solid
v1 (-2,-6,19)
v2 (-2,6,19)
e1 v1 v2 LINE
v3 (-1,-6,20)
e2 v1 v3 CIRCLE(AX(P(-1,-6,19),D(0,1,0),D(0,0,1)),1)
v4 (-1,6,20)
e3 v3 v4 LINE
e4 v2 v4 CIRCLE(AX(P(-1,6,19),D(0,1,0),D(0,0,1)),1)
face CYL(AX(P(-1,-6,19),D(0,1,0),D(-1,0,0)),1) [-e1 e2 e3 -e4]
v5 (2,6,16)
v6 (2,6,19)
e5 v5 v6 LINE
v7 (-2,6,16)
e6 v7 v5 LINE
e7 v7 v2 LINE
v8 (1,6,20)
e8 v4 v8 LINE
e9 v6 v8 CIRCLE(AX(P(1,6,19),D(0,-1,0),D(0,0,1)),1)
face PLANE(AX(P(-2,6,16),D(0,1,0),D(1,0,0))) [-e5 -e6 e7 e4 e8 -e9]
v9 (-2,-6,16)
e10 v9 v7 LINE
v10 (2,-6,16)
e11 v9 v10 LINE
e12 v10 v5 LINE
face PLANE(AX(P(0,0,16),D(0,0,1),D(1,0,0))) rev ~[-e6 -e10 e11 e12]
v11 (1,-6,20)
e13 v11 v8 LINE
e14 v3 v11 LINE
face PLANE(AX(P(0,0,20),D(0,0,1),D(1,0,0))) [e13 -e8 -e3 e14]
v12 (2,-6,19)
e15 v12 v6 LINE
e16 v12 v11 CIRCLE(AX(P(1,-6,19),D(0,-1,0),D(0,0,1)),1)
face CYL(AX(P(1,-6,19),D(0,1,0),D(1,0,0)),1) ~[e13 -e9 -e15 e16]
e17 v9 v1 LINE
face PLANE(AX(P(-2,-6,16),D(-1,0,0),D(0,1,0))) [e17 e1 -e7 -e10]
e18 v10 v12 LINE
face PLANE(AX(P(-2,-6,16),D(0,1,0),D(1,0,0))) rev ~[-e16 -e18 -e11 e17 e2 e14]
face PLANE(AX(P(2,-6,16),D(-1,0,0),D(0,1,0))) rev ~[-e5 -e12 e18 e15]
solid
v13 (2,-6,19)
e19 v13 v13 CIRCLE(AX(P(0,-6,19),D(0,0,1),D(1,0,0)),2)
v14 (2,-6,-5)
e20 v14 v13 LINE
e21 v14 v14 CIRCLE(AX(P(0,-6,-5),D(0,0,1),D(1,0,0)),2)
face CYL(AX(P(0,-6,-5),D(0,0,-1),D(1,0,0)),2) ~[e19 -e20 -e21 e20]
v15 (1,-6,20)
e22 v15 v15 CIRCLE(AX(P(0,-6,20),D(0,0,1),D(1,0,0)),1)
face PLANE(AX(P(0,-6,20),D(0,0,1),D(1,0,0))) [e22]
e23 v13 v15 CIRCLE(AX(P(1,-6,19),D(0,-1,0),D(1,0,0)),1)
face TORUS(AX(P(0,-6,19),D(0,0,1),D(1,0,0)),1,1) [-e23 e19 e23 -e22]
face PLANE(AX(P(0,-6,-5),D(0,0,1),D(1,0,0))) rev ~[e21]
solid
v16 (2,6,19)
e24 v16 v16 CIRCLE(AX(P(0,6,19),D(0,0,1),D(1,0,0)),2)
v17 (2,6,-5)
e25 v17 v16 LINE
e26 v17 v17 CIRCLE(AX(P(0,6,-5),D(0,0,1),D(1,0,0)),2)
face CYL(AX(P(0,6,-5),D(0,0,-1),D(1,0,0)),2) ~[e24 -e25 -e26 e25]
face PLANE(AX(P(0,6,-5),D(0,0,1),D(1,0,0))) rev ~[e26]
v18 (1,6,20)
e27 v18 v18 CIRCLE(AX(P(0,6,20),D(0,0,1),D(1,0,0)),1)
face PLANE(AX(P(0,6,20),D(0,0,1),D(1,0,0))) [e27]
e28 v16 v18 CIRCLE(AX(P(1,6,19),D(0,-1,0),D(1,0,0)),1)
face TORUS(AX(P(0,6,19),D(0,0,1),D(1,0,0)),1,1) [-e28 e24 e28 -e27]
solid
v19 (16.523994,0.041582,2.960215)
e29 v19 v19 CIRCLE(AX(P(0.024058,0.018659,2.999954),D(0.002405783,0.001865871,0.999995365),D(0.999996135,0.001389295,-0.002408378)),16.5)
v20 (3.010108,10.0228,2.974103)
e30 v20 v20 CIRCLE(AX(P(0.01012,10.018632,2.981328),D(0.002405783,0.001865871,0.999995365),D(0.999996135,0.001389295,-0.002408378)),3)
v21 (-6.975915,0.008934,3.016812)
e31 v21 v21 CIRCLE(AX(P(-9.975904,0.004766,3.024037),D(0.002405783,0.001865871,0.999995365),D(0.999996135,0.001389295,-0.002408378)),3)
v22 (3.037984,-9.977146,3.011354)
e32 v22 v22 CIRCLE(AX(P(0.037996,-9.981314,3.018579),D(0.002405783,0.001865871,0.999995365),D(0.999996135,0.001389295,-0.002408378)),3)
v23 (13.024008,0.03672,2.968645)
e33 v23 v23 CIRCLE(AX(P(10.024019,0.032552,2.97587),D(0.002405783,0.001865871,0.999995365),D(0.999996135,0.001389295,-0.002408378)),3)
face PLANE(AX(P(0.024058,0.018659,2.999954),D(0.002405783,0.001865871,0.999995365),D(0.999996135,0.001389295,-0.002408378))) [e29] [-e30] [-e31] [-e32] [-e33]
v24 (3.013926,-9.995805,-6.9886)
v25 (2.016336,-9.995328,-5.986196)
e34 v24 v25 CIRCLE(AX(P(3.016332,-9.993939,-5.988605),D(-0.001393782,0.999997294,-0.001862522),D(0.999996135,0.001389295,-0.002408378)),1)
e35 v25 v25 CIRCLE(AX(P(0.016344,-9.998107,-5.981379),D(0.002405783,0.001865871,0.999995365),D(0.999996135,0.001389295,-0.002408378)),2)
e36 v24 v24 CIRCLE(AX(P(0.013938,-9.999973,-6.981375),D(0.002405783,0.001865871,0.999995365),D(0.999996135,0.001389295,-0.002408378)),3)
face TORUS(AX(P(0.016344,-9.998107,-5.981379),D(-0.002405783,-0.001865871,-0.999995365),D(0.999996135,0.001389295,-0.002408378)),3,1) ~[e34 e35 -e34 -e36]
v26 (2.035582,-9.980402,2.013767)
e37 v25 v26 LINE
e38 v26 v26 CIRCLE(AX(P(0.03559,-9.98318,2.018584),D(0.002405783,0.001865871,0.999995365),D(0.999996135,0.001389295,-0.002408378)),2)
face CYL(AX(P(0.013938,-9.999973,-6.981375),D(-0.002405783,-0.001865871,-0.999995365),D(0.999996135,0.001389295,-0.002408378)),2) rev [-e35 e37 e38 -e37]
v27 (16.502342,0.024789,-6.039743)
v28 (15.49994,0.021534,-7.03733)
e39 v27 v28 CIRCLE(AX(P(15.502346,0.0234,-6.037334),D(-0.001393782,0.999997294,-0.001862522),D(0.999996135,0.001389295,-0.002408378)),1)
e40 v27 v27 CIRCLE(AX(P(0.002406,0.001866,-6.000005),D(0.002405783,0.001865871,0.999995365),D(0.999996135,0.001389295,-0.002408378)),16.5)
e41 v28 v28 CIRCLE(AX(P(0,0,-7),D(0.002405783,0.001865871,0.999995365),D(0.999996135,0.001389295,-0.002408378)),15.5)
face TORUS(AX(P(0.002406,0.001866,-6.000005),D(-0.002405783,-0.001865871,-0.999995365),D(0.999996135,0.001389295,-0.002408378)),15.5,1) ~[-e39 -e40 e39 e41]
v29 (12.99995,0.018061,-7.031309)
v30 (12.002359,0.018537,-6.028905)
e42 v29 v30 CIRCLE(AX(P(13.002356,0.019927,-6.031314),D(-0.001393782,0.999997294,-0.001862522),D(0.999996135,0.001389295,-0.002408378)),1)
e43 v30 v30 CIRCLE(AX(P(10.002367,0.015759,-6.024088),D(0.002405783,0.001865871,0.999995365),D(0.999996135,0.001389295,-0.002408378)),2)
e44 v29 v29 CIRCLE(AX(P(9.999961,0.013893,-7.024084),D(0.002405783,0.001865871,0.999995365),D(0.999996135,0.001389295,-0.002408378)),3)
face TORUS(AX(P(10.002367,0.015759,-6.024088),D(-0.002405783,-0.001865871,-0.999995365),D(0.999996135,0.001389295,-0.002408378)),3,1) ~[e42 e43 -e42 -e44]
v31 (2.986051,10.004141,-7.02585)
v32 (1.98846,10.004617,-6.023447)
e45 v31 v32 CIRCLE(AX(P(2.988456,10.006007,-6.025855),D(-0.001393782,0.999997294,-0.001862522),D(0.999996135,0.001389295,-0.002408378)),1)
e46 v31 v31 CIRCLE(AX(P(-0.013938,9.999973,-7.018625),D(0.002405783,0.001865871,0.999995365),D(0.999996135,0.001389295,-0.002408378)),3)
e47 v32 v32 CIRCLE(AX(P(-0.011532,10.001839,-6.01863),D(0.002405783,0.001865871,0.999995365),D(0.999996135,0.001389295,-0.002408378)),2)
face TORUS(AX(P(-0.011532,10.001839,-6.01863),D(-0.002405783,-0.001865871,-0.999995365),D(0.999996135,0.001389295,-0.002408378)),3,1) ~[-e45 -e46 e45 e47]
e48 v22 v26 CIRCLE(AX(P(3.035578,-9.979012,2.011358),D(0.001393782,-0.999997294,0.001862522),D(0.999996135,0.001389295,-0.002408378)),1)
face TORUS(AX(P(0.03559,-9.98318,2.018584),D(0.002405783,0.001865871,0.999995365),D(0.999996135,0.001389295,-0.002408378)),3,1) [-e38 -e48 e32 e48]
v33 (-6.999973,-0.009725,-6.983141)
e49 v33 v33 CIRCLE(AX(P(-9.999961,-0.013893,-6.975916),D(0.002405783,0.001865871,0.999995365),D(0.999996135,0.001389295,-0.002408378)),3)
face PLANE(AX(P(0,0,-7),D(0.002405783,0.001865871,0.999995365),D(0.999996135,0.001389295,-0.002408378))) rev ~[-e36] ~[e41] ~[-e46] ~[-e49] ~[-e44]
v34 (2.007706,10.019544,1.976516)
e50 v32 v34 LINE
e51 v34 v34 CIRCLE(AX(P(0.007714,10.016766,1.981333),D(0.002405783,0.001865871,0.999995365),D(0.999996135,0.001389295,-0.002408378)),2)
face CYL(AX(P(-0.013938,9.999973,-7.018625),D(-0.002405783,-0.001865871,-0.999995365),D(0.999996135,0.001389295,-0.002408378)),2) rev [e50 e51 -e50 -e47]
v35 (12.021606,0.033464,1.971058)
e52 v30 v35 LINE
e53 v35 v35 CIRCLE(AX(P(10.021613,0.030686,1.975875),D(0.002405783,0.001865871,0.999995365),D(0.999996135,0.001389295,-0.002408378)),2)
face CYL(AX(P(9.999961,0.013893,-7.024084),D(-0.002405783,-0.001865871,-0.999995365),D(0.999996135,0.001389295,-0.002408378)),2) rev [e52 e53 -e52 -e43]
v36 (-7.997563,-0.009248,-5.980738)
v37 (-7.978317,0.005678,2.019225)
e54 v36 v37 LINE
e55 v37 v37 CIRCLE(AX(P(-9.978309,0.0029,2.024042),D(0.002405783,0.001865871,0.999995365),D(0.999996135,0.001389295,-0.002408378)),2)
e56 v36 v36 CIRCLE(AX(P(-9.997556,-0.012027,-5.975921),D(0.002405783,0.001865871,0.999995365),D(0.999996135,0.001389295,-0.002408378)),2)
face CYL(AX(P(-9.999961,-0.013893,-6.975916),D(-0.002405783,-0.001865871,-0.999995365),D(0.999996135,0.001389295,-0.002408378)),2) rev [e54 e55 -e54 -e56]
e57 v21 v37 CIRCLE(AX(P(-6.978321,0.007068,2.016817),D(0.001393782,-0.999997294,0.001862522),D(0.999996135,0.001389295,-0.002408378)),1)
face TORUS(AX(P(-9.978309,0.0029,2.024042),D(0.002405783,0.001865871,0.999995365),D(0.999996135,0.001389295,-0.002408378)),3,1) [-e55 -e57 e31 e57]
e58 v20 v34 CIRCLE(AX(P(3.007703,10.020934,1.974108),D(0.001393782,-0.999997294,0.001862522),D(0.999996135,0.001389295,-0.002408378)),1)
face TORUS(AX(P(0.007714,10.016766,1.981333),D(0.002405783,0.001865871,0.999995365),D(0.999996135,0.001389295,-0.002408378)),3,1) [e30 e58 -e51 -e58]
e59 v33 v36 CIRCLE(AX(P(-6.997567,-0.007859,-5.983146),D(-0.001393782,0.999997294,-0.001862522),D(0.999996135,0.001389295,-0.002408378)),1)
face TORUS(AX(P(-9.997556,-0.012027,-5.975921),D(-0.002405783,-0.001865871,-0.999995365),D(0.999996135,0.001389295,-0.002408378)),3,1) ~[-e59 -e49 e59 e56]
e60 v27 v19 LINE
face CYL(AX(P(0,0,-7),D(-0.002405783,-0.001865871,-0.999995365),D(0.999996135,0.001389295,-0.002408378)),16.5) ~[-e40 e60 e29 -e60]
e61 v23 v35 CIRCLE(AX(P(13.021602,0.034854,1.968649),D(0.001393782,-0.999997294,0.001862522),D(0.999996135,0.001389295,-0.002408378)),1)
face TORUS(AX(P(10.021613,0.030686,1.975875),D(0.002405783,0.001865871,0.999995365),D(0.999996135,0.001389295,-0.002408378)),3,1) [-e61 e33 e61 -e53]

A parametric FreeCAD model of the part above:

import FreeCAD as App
import Part
import Sketcher
Q = App.Units.Quantity


def edges_at(feature, points):
    """Names of the edges that pass closest to the given points."""
    edges = feature.Shape.Edges
    near = lambda p: min(range(len(edges)), key=lambda i: edges[i].distToShape(Part.Vertex(*p))[0])
    return sorted({f"Edge{near(p) + 1}" for p in points})

doc = App.newDocument("Part")
params = doc.addObject("Spreadsheet::Sheet", "Params")
for row, (alias, value) in enumerate([
    ("sketch1_width", "4 mm"),
    ("sketch1_height", "12 mm"),
    ("pad1_length", "4 mm"),
    ("fillet_radius", "1 mm"),
    ("sketch2_diameter", "4 mm"),
    ("pad2_length", "25 mm"),
    ("fillet2_radius", "1 mm"),
    ("sketch3_diameter", "4 mm"),
    ("pad3_length", "25 mm"),
    ("fillet3_radius", "1 mm"),
    ("sketch4_diameter", "4 mm"),
    ("pad4_length", "10 mm"),
    ("sketch5_diameter", "4 mm"),
    ("pad5_length", "10 mm"),
    ("sketch6_diameter", "4 mm"),
    ("pad6_length", "10 mm"),
    ("sketch7_diameter", "4 mm"),
    ("pad7_length", "10 mm"),
    ("sketch8_diameter", "33 mm"),
    ("pad8_length", "10 mm"),
    ("fillet4_radius", "1 mm"),
], start=1):
    params.set(f"A{row}", alias)
    params.set(f"B{row}", "=" + value)
    params.setAlias(f"B{row}", alias)

body = doc.addObject("PartDesign::Body", "Body")

# Sketch on XY plane
sketch1 = body.newObject("Sketcher::SketchObject", "Sketch")
sketch1.AttachmentSupport = (doc.getObject("XY_Plane"), [""])
sketch1.MapMode = "FlatFace"
sketch1.AttachmentOffset = App.Placement(App.Vector(0, 0, 16), App.Rotation())
sketch1.addGeometry([
    Part.LineSegment(App.Vector(-2, 6, 0), App.Vector(-2, -6, 0)),
    Part.LineSegment(App.Vector(-2, -6, 0), App.Vector(2, -6, 0)),
    Part.LineSegment(App.Vector(2, -6, 0), App.Vector(2, 6, 0)),
    Part.LineSegment(App.Vector(2, 6, 0), App.Vector(-2, 6, 0)),
], False)
sketch1.addConstraint([
    Sketcher.Constraint("Coincident", 0, 2, 1, 1),
    Sketcher.Constraint("Coincident", 1, 2, 2, 1),
    Sketcher.Constraint("Coincident", 2, 2, 3, 1),
    Sketcher.Constraint("Coincident", 3, 2, 0, 1),
    Sketcher.Constraint("Vertical", 0),
    Sketcher.Constraint("Horizontal", 1),
    Sketcher.Constraint("Vertical", 2),
    Sketcher.Constraint("Horizontal", 3),
    Sketcher.Constraint("Symmetric", 0, 2, 2, 2, -1, 1),
    Sketcher.Constraint("DistanceX", 1, 1, 1, 2, Q("4 mm")),
    Sketcher.Constraint("DistanceY", 0, 2, 0, 1, Q("12 mm")),
])
sketch1.setExpression("Constraints[9]", "Params.sketch1_width")
sketch1.setExpression("Constraints[10]", "Params.sketch1_height")
pad1 = body.newObject("PartDesign::Pad", "Pad")
pad1.Profile = sketch1
pad1.setExpression("Length", "Params.pad1_length")
doc.recompute()

fillet = body.newObject("PartDesign::Fillet", "Fillet")
fillet.Base = (pad1, edges_at(pad1, [(-2, 0, 20), (2, 0, 20)]))
fillet.setExpression("Radius", "Params.fillet_radius")
body2 = doc.addObject("PartDesign::Body", "Body001")

# Sketch on XY plane
sketch2 = body2.newObject("Sketcher::SketchObject", "Sketch001")
sketch2.AttachmentSupport = (doc.getObject("XY_Plane001"), [""])
sketch2.MapMode = "FlatFace"
sketch2.AttachmentOffset = App.Placement(App.Vector(0, 0, -5), App.Rotation())
sketch2.addGeometry(Part.Circle(App.Vector(0, -6, 0), App.Vector(0, 0, 1), 2), False)
sketch2.addConstraint([
    Sketcher.Constraint("PointOnObject", 0, 3, -2),
    Sketcher.Constraint("Diameter", 0, Q("4 mm")),
    Sketcher.Constraint("DistanceY", 0, 3, -1, 1, Q("6 mm")),
])
sketch2.setExpression("Constraints[1]", "Params.sketch2_diameter")
pad2 = body2.newObject("PartDesign::Pad", "Pad001")
pad2.Profile = sketch2
pad2.setExpression("Length", "Params.pad2_length")
doc.recompute()

fillet2 = body2.newObject("PartDesign::Fillet", "Fillet001")
fillet2.Base = (pad2, edges_at(pad2, [(-2, -6, 20)]))
fillet2.setExpression("Radius", "Params.fillet2_radius")
body3 = doc.addObject("PartDesign::Body", "Body002")

# Sketch on XY plane
sketch3 = body3.newObject("Sketcher::SketchObject", "Sketch002")
sketch3.AttachmentSupport = (doc.getObject("XY_Plane002"), [""])
sketch3.MapMode = "FlatFace"
sketch3.AttachmentOffset = App.Placement(App.Vector(0, 0, -5), App.Rotation())
sketch3.addGeometry(Part.Circle(App.Vector(0, 6, 0), App.Vector(0, 0, 1), 2), False)
sketch3.addConstraint([
    Sketcher.Constraint("PointOnObject", 0, 3, -2),
    Sketcher.Constraint("Diameter", 0, Q("4 mm")),
    Sketcher.Constraint("DistanceY", -1, 1, 0, 3, Q("6 mm")),
])
sketch3.setExpression("Constraints[1]", "Params.sketch3_diameter")
pad3 = body3.newObject("PartDesign::Pad", "Pad002")
pad3.Profile = sketch3
pad3.setExpression("Length", "Params.pad3_length")
doc.recompute()

fillet3 = body3.newObject("PartDesign::Fillet", "Fillet002")
fillet3.Base = (pad3, edges_at(pad3, [(-2, 6, 20)]))
fillet3.setExpression("Radius", "Params.fillet3_radius")
body4 = doc.addObject("PartDesign::Body", "Body003")

# Sketch on XY plane
sketch4 = body4.newObject("Sketcher::SketchObject", "Sketch003")
sketch4.AttachmentSupport = (doc.getObject("XY_Plane003"), [""])
sketch4.MapMode = "FlatFace"
sketch4.addGeometry(Part.Circle(App.Vector(-10, 0, 0), App.Vector(0, 0, 1), 2), False)
sketch4.addConstraint([
    Sketcher.Constraint("PointOnObject", 0, 3, -1),
    Sketcher.Constraint("Diameter", 0, Q("4 mm")),
    Sketcher.Constraint("DistanceX", 0, 3, -1, 1, Q("10 mm")),
])
sketch4.setExpression("Constraints[1]", "Params.sketch4_diameter")
pad4 = body4.newObject("PartDesign::Pad", "Pad003")
pad4.Profile = sketch4
pad4.setExpression("Length", "Params.pad4_length")
body5 = doc.addObject("PartDesign::Body", "Body004")

# Sketch on XY plane
sketch5 = body5.newObject("Sketcher::SketchObject", "Sketch004")
sketch5.AttachmentSupport = (doc.getObject("XY_Plane004"), [""])
sketch5.MapMode = "FlatFace"
sketch5.addGeometry(Part.Circle(App.Vector(0, -10, 0), App.Vector(0, 0, 1), 2), False)
sketch5.addConstraint([
    Sketcher.Constraint("PointOnObject", 0, 3, -2),
    Sketcher.Constraint("Diameter", 0, Q("4 mm")),
    Sketcher.Constraint("DistanceY", 0, 3, -1, 1, Q("10 mm")),
])
sketch5.setExpression("Constraints[1]", "Params.sketch5_diameter")
pad5 = body5.newObject("PartDesign::Pad", "Pad004")
pad5.Profile = sketch5
pad5.setExpression("Length", "Params.pad5_length")
body6 = doc.addObject("PartDesign::Body", "Body005")

# Sketch on XY plane
sketch6 = body6.newObject("Sketcher::SketchObject", "Sketch005")
sketch6.AttachmentSupport = (doc.getObject("XY_Plane005"), [""])
sketch6.MapMode = "FlatFace"
sketch6.addGeometry(Part.Circle(App.Vector(0, 10, 0), App.Vector(0, 0, 1), 2), False)
sketch6.addConstraint([
    Sketcher.Constraint("PointOnObject", 0, 3, -2),
    Sketcher.Constraint("Diameter", 0, Q("4 mm")),
    Sketcher.Constraint("DistanceY", -1, 1, 0, 3, Q("10 mm")),
])
sketch6.setExpression("Constraints[1]", "Params.sketch6_diameter")
pad6 = body6.newObject("PartDesign::Pad", "Pad005")
pad6.Profile = sketch6
pad6.setExpression("Length", "Params.pad6_length")
body7 = doc.addObject("PartDesign::Body", "Body006")

# Sketch on XY plane
sketch7 = body7.newObject("Sketcher::SketchObject", "Sketch006")
sketch7.AttachmentSupport = (doc.getObject("XY_Plane006"), [""])
sketch7.MapMode = "FlatFace"
sketch7.addGeometry(Part.Circle(App.Vector(10, 0, 0), App.Vector(0, 0, 1), 2), False)
sketch7.addConstraint([
    Sketcher.Constraint("PointOnObject", 0, 3, -1),
    Sketcher.Constraint("Diameter", 0, Q("4 mm")),
    Sketcher.Constraint("DistanceX", -1, 1, 0, 3, Q("10 mm")),
])
sketch7.setExpression("Constraints[1]", "Params.sketch7_diameter")
pad7 = body7.newObject("PartDesign::Pad", "Pad006")
pad7.Profile = sketch7
pad7.setExpression("Length", "Params.pad7_length")
body8 = doc.addObject("PartDesign::Body", "Body007")

# Sketch on XY plane
sketch8 = body8.newObject("Sketcher::SketchObject", "Sketch007")
sketch8.AttachmentSupport = (doc.getObject("XY_Plane007"), [""])
sketch8.MapMode = "FlatFace"
sketch8.addGeometry(Part.Circle(App.Vector(0, 0, 0), App.Vector(0, 0, 1), 16.5), False)
sketch8.addConstraint([
    Sketcher.Constraint("Coincident", 0, 3, -1, 1),
    Sketcher.Constraint("Diameter", 0, Q("33 mm")),
])
sketch8.setExpression("Constraints[1]", "Params.sketch8_diameter")
pad8 = body8.newObject("PartDesign::Pad", "Pad007")
pad8.Profile = sketch8
pad8.setExpression("Length", "Params.pad8_length")
doc.recompute()

boolean = body8.newObject("PartDesign::Boolean", "Boolean")
boolean.Type = "Cut"
boolean.addObjects([body7])
doc.recompute()

boolean2 = body8.newObject("PartDesign::Boolean", "Boolean001")
boolean2.Type = "Cut"
boolean2.addObjects([body6])
doc.recompute()

boolean3 = body8.newObject("PartDesign::Boolean", "Boolean002")
boolean3.Type = "Cut"
boolean3.addObjects([body5])
doc.recompute()

boolean4 = body8.newObject("PartDesign::Boolean", "Boolean003")
boolean4.Type = "Cut"
boolean4.addObjects([body4])
body9 = doc.addObject("PartDesign::Body", "Body008")
doc.recompute()

body8.Placement = App.Placement(App.Vector(0, 0, 0), App.Rotation(App.Vector(1, 0, 0), 359.893285))
boolean5 = body9.newObject("PartDesign::Boolean", "Boolean004")
boolean5.Type = "Fuse"
boolean5.addObjects([body8])
body10 = doc.addObject("PartDesign::Body", "Body009")
doc.recompute()

body9.Placement = App.Placement(App.Vector(0, 0, 0), App.Rotation(App.Vector(0, 1, 0), 0.13799))
boolean6 = body10.newObject("PartDesign::Boolean", "Boolean005")
boolean6.Type = "Fuse"
boolean6.addObjects([body9])
body11 = doc.addObject("PartDesign::Body", "Body010")
doc.recompute()

body10.Placement = App.Placement(App.Vector(0, 0, -7), App.Rotation(App.Vector(0, 0, 1), 0.079601))
boolean7 = body11.newObject("PartDesign::Boolean", "Boolean006")
boolean7.Type = "Fuse"
boolean7.addObjects([body10])
doc.recompute()

fillet4 = body11.newObject("PartDesign::Fillet", "Fillet003")
fillet4.Base = (boolean7, edges_at(boolean7, [
    (-16.5, -0.023, -6.96),
    (-11.976, 0.002, 3.029),
    (-1.99, 10.016, 2.986),
    (-1.962, -9.984, 3.023),
    (8.024, 0.03, 2.981),
    (-12, -0.017, -6.971),
    (-2.014, 9.997, -7.014),
    (-1.986, -10.003, -6.977),
    (8, 0.011, -7.019),
]))
fillet4.setExpression("Radius", "Params.fillet4_radius")

doc.recompute()
